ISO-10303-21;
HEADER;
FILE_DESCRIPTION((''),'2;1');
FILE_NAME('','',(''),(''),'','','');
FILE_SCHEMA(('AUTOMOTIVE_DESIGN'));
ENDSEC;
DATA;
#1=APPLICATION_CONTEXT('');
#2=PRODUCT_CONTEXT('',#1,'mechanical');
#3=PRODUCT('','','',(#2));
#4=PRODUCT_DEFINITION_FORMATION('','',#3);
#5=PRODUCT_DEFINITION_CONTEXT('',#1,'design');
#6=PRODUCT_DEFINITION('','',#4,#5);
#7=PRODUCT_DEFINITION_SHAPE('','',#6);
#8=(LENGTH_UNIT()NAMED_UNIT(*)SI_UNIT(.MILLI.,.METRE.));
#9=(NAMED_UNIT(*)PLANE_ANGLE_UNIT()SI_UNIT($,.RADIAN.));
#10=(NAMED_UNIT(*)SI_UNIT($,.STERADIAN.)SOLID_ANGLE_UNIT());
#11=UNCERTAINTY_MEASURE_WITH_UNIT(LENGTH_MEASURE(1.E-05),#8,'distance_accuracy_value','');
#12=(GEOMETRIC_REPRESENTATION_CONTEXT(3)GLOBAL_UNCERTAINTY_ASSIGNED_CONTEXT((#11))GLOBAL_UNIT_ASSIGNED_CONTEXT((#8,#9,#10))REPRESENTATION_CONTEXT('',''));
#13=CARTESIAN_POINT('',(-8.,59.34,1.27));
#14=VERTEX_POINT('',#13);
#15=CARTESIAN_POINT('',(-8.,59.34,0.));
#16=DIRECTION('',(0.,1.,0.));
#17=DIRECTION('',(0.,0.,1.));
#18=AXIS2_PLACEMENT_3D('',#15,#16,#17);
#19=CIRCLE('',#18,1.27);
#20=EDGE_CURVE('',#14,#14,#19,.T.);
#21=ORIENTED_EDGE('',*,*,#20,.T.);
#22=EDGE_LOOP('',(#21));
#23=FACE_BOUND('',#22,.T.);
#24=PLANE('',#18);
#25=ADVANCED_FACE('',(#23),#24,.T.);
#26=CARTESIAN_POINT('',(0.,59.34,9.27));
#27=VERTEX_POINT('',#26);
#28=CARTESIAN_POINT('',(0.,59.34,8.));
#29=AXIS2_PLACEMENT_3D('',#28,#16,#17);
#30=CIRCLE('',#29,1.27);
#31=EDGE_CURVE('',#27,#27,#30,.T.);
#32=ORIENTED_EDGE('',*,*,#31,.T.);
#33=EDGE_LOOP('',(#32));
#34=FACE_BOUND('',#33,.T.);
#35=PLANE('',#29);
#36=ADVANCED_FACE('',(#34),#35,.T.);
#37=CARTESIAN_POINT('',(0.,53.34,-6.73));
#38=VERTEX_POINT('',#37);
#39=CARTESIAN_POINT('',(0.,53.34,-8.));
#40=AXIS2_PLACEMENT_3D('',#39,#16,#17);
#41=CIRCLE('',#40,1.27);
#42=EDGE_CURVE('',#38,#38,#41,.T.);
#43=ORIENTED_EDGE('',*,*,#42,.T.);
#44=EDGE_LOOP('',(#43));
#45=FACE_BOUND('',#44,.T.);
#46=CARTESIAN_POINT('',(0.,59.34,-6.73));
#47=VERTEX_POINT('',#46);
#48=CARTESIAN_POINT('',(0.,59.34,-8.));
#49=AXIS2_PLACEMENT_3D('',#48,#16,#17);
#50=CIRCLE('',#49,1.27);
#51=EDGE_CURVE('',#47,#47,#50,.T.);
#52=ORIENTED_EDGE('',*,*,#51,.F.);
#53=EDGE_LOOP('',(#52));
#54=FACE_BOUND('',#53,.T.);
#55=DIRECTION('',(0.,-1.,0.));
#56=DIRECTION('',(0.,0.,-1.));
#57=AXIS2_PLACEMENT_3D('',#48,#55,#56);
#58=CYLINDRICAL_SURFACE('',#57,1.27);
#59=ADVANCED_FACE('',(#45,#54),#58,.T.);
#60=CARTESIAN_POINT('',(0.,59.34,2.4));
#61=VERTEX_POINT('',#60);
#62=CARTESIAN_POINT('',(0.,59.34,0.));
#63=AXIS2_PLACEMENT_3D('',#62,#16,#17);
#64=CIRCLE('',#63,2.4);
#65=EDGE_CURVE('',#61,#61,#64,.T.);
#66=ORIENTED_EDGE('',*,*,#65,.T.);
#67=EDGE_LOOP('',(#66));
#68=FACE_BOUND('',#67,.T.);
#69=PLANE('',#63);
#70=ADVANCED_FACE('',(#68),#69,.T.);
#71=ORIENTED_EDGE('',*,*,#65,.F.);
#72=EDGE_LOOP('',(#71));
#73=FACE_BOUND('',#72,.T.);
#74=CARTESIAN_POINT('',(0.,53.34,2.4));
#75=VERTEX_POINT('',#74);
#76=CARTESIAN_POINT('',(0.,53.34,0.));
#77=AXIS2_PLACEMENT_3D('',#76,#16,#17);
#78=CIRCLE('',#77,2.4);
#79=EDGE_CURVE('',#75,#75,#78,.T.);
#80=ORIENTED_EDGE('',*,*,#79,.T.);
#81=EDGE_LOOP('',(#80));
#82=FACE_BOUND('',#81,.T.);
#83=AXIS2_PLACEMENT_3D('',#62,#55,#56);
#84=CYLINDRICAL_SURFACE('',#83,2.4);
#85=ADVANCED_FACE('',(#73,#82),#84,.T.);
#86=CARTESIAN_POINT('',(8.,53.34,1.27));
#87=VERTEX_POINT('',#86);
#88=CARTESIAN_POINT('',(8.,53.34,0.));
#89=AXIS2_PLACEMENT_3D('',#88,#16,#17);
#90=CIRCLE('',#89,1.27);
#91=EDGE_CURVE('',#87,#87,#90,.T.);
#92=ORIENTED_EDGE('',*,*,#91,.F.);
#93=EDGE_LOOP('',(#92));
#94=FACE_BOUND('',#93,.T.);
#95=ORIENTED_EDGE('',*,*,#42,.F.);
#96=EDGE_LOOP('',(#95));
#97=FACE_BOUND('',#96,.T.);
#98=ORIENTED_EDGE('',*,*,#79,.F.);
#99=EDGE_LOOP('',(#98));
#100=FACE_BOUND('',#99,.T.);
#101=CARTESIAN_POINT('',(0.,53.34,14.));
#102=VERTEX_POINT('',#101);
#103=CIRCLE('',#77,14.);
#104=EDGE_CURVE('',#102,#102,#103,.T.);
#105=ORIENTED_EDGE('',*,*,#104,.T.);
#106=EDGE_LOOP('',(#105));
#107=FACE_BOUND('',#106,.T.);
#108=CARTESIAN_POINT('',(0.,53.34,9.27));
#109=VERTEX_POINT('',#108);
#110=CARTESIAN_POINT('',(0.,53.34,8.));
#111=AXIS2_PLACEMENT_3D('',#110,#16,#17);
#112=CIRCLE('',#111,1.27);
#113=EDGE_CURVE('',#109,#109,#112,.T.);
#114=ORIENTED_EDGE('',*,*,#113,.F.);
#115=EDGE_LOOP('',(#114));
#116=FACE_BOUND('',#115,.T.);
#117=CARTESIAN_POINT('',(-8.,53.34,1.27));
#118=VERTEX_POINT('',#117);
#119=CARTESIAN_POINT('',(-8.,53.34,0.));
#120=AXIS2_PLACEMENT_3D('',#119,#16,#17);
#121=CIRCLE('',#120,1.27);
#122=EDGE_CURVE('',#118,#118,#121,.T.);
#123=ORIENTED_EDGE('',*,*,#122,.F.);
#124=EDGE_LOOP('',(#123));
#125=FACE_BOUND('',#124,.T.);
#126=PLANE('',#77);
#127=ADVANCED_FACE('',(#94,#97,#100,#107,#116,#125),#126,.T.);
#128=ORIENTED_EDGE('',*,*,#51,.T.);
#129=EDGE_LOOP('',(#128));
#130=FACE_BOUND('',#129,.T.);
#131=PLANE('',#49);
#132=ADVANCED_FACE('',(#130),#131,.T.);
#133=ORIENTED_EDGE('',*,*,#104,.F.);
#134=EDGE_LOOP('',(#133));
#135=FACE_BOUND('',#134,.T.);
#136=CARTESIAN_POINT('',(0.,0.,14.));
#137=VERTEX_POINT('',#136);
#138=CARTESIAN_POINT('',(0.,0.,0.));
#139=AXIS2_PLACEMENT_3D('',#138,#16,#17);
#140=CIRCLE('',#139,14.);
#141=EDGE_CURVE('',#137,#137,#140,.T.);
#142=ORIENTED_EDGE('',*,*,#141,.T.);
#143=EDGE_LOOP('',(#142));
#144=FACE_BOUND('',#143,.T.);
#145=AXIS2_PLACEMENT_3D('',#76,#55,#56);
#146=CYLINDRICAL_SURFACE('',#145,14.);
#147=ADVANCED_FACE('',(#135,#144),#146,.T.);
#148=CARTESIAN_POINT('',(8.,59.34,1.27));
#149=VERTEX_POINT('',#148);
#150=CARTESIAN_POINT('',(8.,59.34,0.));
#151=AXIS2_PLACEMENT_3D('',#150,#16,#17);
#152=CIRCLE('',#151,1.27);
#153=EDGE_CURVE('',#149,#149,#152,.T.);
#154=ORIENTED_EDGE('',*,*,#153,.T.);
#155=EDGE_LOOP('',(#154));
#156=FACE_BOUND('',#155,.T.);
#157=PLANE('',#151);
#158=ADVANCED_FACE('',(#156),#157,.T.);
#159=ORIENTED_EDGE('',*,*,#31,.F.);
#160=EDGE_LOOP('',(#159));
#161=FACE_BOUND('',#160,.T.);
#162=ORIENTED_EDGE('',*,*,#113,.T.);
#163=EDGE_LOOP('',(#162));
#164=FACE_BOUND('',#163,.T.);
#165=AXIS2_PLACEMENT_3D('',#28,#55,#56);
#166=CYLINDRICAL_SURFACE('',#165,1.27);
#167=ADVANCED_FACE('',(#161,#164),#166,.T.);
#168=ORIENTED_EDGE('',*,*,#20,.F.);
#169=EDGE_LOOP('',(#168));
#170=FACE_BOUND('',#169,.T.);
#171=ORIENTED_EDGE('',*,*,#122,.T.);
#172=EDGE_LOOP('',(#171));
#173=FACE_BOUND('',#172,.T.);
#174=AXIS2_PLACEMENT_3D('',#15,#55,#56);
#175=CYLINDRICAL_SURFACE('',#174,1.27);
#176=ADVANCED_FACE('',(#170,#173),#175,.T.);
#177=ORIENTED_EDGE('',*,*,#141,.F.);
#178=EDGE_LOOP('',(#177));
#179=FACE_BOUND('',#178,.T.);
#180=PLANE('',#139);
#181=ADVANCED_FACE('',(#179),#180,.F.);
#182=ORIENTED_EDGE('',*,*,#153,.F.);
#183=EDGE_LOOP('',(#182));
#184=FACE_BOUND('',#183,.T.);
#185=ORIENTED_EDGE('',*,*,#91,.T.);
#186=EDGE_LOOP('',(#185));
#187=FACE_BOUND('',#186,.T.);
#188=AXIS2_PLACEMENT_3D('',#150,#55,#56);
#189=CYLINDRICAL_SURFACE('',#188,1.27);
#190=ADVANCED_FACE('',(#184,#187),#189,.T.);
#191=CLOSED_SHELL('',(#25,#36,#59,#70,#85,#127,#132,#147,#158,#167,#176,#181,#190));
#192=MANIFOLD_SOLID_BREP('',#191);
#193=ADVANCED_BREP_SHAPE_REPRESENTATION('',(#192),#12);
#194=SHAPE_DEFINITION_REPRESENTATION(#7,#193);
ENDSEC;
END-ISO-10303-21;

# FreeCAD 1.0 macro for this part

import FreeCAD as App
import Part
import Sketcher

V = App.Vector
Q = App.Units.Quantity

doc = App.newDocument("Part")
params = doc.addObject("Spreadsheet::Sheet", "Params")
for row, (alias, value) in enumerate([
    ("sketch1_diameter", "28 mm"),
    ("pad1_length", "53.34 mm"),
    ("sketch2_diameter", "4.8 mm"),
    ("sketch2_diameter2", "2.54 mm"),
    ("pad2_length", "6 mm"),
], start=1):
    params.set(f"A{row}", alias)
    params.set(f"B{row}", "=" + value)
    params.setAlias(f"B{row}", alias)

body = doc.addObject("PartDesign::Body", "Body")

# Sketch on XZ plane
sketch1 = body.newObject("Sketcher::SketchObject", "Sketch")
sketch1.AttachmentSupport = (doc.getObject("XZ_Plane"), [""])
sketch1.MapMode = "FlatFace"
sketch1.addGeometry(Part.Circle(V(0, 0, 0), V(0, 0, 1), 14), False)
sketch1.addConstraint([
    Sketcher.Constraint("Coincident", 0, 3, -1, 1),
    Sketcher.Constraint("Diameter", 0, Q("28 mm")),
])
sketch1.setExpression("Constraints[1]", "Params.sketch1_diameter")
pad1 = body.newObject("PartDesign::Pad", "Pad")
pad1.Profile = sketch1
pad1.setExpression("Length", "Params.pad1_length")
pad1.Reversed = True

# Sketch on XZ plane
sketch2 = body.newObject("Sketcher::SketchObject", "Sketch001")
sketch2.AttachmentSupport = (doc.getObject("XZ_Plane"), [""])
sketch2.MapMode = "FlatFace"
sketch2.AttachmentOffset = App.Placement(V(0, 0, -53.34), App.Rotation())
sketch2.addGeometry([
    Part.Circle(V(0, 0, 0), V(0, 0, 1), 2.4),  # 0
    Part.Circle(V(8, 0, 0), V(0, 0, 1), 1.27),  # 1
    Part.Circle(V(0, 8, 0), V(0, 0, 1), 1.27),  # 2
    Part.Circle(V(-8, 0, 0), V(0, 0, 1), 1.27),  # 3
    Part.Circle(V(0, -8, 0), V(0, 0, 1), 1.27),  # 4
], False)
sketch2.addConstraint([
    Sketcher.Constraint("Coincident", 0, 3, -1, 1),
    Sketcher.Constraint("Equal", 1, 2),
    Sketcher.Constraint("Equal", 2, 3),
    Sketcher.Constraint("Equal", 3, 4),
    Sketcher.Constraint("Symmetric", 1, 3, 3, 3, -1, 1),
    Sketcher.Constraint("Symmetric", 2, 3, 4, 3, -1, 1),
    Sketcher.Constraint("PointOnObject", 1, 3, -1),
    Sketcher.Constraint("PointOnObject", 2, 3, -2),
    Sketcher.Constraint("Diameter", 0, Q("4.8 mm")),
    Sketcher.Constraint("Diameter", 1, Q("2.54 mm")),
    Sketcher.Constraint("DistanceX", -1, 1, 1, 3, Q("8 mm")),
    Sketcher.Constraint("DistanceY", -1, 1, 2, 3, Q("8 mm")),
])
sketch2.setExpression("Constraints[8]", "Params.sketch2_diameter")
sketch2.setExpression("Constraints[9]", "Params.sketch2_diameter2")
pad2 = body.newObject("PartDesign::Pad", "Pad001")
pad2.Profile = sketch2
pad2.setExpression("Length", "Params.pad2_length")
pad2.Reversed = True

doc.recompute()
